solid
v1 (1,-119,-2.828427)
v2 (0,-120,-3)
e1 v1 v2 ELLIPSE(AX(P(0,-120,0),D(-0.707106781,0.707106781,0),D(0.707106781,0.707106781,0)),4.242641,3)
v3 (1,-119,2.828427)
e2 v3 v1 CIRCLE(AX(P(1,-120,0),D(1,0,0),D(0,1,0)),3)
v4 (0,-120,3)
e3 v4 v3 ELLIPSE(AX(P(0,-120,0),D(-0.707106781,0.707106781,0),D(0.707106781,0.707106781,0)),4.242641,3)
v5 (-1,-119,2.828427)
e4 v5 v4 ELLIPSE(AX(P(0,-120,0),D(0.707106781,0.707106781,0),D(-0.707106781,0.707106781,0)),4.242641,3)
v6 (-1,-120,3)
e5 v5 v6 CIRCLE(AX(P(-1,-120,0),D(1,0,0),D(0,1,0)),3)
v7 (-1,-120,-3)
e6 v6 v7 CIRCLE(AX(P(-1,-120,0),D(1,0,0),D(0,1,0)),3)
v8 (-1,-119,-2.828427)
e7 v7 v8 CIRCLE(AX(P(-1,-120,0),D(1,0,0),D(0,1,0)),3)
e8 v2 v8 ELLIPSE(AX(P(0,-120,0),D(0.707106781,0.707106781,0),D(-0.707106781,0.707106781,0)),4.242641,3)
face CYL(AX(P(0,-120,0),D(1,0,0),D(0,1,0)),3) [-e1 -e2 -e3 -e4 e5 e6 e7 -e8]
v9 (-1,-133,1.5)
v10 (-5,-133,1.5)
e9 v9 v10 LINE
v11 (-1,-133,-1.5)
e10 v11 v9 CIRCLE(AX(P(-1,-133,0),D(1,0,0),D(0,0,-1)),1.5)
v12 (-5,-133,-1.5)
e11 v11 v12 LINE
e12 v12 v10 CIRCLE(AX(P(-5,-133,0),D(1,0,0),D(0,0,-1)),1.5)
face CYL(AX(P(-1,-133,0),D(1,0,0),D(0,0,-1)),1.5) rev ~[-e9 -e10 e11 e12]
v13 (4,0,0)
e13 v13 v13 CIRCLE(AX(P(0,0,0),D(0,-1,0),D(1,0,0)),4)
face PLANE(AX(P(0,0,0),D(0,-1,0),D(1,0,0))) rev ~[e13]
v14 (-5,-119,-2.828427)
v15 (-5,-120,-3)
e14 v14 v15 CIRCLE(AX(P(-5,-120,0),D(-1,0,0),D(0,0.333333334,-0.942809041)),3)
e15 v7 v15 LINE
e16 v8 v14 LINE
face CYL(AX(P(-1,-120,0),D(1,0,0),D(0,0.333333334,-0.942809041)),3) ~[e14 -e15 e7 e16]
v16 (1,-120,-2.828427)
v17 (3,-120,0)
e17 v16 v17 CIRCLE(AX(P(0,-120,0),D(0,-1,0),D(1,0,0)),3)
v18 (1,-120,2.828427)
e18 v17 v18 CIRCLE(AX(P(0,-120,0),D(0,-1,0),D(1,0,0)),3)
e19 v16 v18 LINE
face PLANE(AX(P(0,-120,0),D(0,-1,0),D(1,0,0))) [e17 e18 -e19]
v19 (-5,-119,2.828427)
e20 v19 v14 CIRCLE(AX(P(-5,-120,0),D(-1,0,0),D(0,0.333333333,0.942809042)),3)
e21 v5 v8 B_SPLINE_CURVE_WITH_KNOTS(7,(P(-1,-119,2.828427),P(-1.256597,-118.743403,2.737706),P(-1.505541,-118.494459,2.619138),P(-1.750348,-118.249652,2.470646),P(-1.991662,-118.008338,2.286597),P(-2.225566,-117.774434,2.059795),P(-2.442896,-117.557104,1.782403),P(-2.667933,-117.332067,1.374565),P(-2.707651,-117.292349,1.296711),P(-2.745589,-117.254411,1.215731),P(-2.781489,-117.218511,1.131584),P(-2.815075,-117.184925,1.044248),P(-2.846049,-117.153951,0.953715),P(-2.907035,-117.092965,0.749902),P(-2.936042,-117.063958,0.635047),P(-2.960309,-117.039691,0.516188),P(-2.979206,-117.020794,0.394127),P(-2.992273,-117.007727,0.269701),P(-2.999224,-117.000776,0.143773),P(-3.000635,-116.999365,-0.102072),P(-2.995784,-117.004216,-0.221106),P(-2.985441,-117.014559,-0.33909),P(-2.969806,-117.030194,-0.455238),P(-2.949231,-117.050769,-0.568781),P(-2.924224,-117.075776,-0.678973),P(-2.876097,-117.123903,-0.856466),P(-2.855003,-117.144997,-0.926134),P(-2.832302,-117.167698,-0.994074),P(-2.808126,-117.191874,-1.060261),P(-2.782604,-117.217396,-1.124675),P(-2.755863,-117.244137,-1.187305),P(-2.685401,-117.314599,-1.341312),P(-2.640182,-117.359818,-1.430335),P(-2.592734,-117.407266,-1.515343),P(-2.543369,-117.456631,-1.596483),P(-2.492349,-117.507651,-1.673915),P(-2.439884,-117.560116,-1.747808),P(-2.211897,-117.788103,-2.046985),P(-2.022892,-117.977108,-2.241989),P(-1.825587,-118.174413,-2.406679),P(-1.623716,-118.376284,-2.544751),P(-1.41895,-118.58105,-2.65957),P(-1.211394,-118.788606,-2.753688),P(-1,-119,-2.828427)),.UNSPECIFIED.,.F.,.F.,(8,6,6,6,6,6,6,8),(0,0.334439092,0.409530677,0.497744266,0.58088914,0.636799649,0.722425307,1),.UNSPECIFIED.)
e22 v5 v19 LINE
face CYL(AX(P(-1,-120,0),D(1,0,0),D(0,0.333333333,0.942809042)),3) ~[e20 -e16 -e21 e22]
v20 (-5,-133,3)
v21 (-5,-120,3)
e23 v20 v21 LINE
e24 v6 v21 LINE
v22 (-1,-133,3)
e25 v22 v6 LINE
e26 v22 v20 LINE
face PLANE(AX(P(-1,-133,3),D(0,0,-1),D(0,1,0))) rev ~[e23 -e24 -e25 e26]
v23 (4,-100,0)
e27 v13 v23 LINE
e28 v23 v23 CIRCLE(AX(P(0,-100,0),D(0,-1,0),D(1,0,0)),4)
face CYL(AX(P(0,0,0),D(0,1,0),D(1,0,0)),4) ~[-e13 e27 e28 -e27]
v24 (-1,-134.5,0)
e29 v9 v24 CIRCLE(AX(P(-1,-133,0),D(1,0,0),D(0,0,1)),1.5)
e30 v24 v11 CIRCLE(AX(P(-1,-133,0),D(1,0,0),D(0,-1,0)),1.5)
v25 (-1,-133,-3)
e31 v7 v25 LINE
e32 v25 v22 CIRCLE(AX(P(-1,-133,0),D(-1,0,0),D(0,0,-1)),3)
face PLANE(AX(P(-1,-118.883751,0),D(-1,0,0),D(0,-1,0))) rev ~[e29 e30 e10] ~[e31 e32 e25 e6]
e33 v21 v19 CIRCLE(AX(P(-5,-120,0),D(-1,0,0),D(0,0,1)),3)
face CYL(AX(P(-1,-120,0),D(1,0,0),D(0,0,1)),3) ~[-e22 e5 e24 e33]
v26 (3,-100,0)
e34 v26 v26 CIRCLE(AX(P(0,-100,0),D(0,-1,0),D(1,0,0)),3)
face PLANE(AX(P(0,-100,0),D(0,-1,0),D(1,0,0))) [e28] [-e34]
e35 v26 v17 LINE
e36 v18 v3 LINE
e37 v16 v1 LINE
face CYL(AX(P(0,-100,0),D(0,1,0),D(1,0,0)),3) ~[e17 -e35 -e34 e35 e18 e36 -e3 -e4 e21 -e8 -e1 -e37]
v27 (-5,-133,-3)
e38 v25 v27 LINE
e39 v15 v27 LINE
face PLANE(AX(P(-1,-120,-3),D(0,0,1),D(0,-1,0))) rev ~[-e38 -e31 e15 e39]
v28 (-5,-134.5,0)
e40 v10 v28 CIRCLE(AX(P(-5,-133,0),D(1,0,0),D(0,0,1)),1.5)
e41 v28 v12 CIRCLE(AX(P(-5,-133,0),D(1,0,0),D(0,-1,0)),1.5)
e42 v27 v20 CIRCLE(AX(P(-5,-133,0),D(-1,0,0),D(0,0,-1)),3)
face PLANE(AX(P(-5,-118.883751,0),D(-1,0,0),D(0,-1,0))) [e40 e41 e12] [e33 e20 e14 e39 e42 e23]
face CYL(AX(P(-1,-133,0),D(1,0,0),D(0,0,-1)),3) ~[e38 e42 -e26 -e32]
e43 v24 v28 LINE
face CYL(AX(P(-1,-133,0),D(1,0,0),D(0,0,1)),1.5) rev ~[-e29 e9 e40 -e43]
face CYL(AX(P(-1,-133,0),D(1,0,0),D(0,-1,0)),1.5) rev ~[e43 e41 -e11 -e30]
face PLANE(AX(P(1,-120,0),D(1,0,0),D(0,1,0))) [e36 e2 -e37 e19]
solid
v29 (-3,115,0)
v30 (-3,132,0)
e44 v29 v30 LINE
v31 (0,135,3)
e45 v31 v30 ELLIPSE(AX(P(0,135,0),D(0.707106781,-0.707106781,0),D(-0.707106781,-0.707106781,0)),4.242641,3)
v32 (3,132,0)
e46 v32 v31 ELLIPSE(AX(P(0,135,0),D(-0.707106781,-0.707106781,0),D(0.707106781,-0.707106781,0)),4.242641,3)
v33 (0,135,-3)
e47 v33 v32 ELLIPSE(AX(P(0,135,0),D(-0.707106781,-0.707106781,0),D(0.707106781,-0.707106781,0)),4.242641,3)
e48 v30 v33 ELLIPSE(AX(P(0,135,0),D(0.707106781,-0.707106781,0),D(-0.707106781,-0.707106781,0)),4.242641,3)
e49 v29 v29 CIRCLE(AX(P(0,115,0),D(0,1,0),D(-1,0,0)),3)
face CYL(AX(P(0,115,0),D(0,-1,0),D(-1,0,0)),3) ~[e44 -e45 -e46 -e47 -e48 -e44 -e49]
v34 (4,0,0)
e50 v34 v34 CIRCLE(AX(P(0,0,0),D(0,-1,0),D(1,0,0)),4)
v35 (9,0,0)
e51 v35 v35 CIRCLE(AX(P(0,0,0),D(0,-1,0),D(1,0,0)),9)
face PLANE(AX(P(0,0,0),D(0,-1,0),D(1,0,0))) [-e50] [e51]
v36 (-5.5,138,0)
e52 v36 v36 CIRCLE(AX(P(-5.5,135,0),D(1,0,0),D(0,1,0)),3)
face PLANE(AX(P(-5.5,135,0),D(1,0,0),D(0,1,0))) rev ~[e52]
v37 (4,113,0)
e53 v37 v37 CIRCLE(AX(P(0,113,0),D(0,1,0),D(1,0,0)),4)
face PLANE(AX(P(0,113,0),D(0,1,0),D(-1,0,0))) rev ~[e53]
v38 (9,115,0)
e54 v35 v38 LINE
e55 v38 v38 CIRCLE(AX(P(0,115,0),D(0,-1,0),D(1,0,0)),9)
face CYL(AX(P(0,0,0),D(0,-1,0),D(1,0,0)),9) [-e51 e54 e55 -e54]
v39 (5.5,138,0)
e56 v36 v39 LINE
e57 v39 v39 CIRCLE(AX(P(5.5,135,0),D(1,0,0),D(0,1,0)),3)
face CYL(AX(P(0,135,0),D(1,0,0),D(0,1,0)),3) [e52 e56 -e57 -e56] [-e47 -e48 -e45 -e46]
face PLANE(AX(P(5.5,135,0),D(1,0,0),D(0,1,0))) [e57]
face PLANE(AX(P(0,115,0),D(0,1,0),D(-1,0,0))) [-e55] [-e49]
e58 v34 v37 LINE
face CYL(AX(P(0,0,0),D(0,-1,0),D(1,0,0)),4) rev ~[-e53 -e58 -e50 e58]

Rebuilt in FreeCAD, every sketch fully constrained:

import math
import FreeCAD as App
import Part
import Sketcher

V = App.Vector
Q = App.Units.Quantity

doc = App.newDocument("Part")
body = doc.addObject("PartDesign::Body", "Body")

# Sketch on XZ plane
sketch1 = doc.addObject("Sketcher::SketchObject", "Sketch")
body.addObject(sketch1)
sketch1.AttachmentSupport = (doc.XZ_Plane, [""])
sketch1.MapMode = "FlatFace"
sketch1.addGeometry(Part.Circle(V(0, 0, 0), V(0, 0, 1), 4), False)
sketch1.addConstraint([
    Sketcher.Constraint("Coincident", 0, 3, -1, 1),
    Sketcher.Constraint("Diameter", 0, Q("8 mm")),
])
pad1 = doc.addObject("PartDesign::Pad", "Pad")
body.addObject(pad1)
pad1.Profile = sketch1
pad1.Length = 100

# Sketch on XZ plane
sketch2 = doc.addObject("Sketcher::SketchObject", "Sketch001")
body.addObject(sketch2)
sketch2.AttachmentSupport = (doc.XZ_Plane, [""])
sketch2.MapMode = "FlatFace"
sketch2.AttachmentOffset = App.Placement(V(0, 0, 100), App.Rotation())
sketch2.addGeometry(Part.Circle(V(0, 0, 0), V(0, 0, 1), 3), False)
sketch2.addConstraint([
    Sketcher.Constraint("Coincident", 0, 3, -1, 1),
    Sketcher.Constraint("Diameter", 0, Q("6 mm")),
])
pad2 = doc.addObject("PartDesign::Pad", "Pad001")
body.addObject(pad2)
pad2.Profile = sketch2
pad2.Length = 20

# Sketch on YZ plane
sketch3 = doc.addObject("Sketcher::SketchObject", "Sketch002")
body.addObject(sketch3)
sketch3.AttachmentSupport = (doc.YZ_Plane, [""])
sketch3.MapMode = "FlatFace"
sketch3.addGeometry(Part.Circle(V(-120, 0, 0), V(0, 0, 1), 3), False)
sketch3.addConstraint([
    Sketcher.Constraint("PointOnObject", 0, 3, -1),
    Sketcher.Constraint("Diameter", 0, Q("6 mm")),
    Sketcher.Constraint("DistanceX", 0, 3, -1, 1, Q("120 mm")),
])
pad3 = doc.addObject("PartDesign::Pad", "Pad002")
body.addObject(pad3)
pad3.Profile = sketch3
pad3.Length = 2
pad3.Midplane = True

# Sketch on YZ plane
sketch4 = doc.addObject("Sketcher::SketchObject", "Sketch003")
body.addObject(sketch4)
sketch4.AttachmentSupport = (doc.YZ_Plane, [""])
sketch4.MapMode = "FlatFace"
sketch4.AttachmentOffset = App.Placement(V(0, 0, -1), App.Rotation())
sketch4.addGeometry([
    Part.ArcOfCircle(Part.Circle(V(-120, 0, 0), V(0, 0, 1), 3), math.radians(-70.528779), math.radians(70.528779)),  # 0
    Part.ArcOfCircle(Part.Circle(V(-120, 0, 0), V(0, 0, 1), 3), math.radians(-90), math.radians(-70.528779)),  # 1
    Part.LineSegment(V(-120, -3, 0), V(-133, -3, 0)),  # 2
    Part.ArcOfCircle(Part.Circle(V(-133, 0, 0), V(0, 0, 1), 3), math.radians(90), math.radians(270)),  # 3
    Part.LineSegment(V(-133, 3, 0), V(-120, 3, 0)),  # 4
    Part.ArcOfCircle(Part.Circle(V(-120, 0, 0), V(0, 0, 1), 3), math.radians(70.528779), math.radians(90)),  # 5
    Part.ArcOfCircle(Part.Circle(V(-133, 0, 0), V(0, 0, 1), 1.5), math.radians(-90), math.radians(90)),  # 6
    Part.ArcOfCircle(Part.Circle(V(-133, 0, 0), V(0, 0, 1), 1.5), math.radians(90), math.radians(180)),  # 7
    Part.ArcOfCircle(Part.Circle(V(-133, 0, 0), V(0, 0, 1), 1.5), math.radians(180), math.radians(270)),  # 8
], False)
sketch4.addConstraint([
    Sketcher.Constraint("Tangent", 0, 1, 1, 2),
    Sketcher.Constraint("Tangent", 1, 1, 2, 1),
    Sketcher.Constraint("Tangent", 2, 2, 3, 2),
    Sketcher.Constraint("Tangent", 3, 1, 4, 1),
    Sketcher.Constraint("Tangent", 4, 2, 5, 2),
    Sketcher.Constraint("Tangent", 5, 1, 0, 2),
    Sketcher.Constraint("Tangent", 6, 2, 7, 1),
    Sketcher.Constraint("Tangent", 7, 2, 8, 1),
    Sketcher.Constraint("Tangent", 8, 2, 6, 1),
    Sketcher.Constraint("Horizontal", 2),
    Sketcher.Constraint("Horizontal", 4),
    Sketcher.Constraint("Coincident", 6, 3, 3, 3),
    Sketcher.Constraint("Equal", 0, 1),
    Sketcher.Constraint("Equal", 1, 3),
    Sketcher.Constraint("Symmetric", 0, 1, 5, 1, -1),
    Sketcher.Constraint("PointOnObject", 7, 2, -1),
    Sketcher.Constraint("Vertical", 3, 1, 6, 2),
    Sketcher.Constraint("Vertical", 6, 2, 8, 2),
    Sketcher.Constraint("Radius", 0, Q("3 mm")),
    Sketcher.Constraint("Radius", 6, Q("1.5 mm")),
    Sketcher.Constraint("DistanceX", 2, 2, 2, 1, Q("13 mm")),
    Sketcher.Constraint("DistanceX", 0, 3, -1, 1, Q("120 mm")),
    Sketcher.Constraint("DistanceX", 0, 1, -1, 1, Q("119 mm")),
])
pad4 = doc.addObject("PartDesign::Pad", "Pad003")
body.addObject(pad4)
pad4.Profile = sketch4
pad4.Length = 4
pad4.Reversed = True
body2 = doc.addObject("PartDesign::Body", "Body001")

# Sketch on XZ plane
sketch5 = doc.addObject("Sketcher::SketchObject", "Sketch004")
body2.addObject(sketch5)
sketch5.AttachmentSupport = (doc.getObject("XZ_Plane001"), [""])
sketch5.MapMode = "FlatFace"
sketch5.addGeometry([
    Part.Circle(V(0, 0, 0), V(0, 0, 1), 9),
    Part.Circle(V(0, 0, 0), V(0, 0, 1), 4),
], False)
sketch5.addConstraint([
    Sketcher.Constraint("Coincident", 0, 3, -1, 1),
    Sketcher.Constraint("Coincident", 1, 3, -1, 1),
    Sketcher.Constraint("Diameter", 0, Q("18 mm")),
    Sketcher.Constraint("Diameter", 1, Q("8 mm")),
])
pad5 = doc.addObject("PartDesign::Pad", "Pad004")
body2.addObject(pad5)
pad5.Profile = sketch5
pad5.Length = 115
pad5.Reversed = True

# Sketch on XZ plane
sketch6 = doc.addObject("Sketcher::SketchObject", "Sketch005")
body2.addObject(sketch6)
sketch6.AttachmentSupport = (doc.getObject("XZ_Plane001"), [""])
sketch6.MapMode = "FlatFace"
sketch6.AttachmentOffset = App.Placement(V(0, 0, -115), App.Rotation())
sketch6.addGeometry(Part.Circle(V(0, 0, 0), V(0, 0, 1), 4), False)
sketch6.addConstraint([
    Sketcher.Constraint("Coincident", 0, 3, -1, 1),
    Sketcher.Constraint("Diameter", 0, Q("8 mm")),
])
pad6 = doc.addObject("PartDesign::Pad", "Pad005")
body2.addObject(pad6)
pad6.Profile = sketch6
pad6.Length = 2

# Sketch on XZ plane
sketch7 = doc.addObject("Sketcher::SketchObject", "Sketch006")
body2.addObject(sketch7)
sketch7.AttachmentSupport = (doc.getObject("XZ_Plane001"), [""])
sketch7.MapMode = "FlatFace"
sketch7.AttachmentOffset = App.Placement(V(0, 0, -115), App.Rotation())
sketch7.addGeometry(Part.Circle(V(0, 0, 0), V(0, 0, 1), 3), False)
sketch7.addConstraint([
    Sketcher.Constraint("Coincident", 0, 3, -1, 1),
    Sketcher.Constraint("Diameter", 0, Q("6 mm")),
])
pad7 = doc.addObject("PartDesign::Pad", "Pad006")
body2.addObject(pad7)
pad7.Profile = sketch7
pad7.Type = "TwoLengths"
pad7.Length = 20
pad7.Length2 = 1
pad7.Reversed = True

# Sketch on YZ plane
sketch8 = doc.addObject("Sketcher::SketchObject", "Sketch007")
body2.addObject(sketch8)
sketch8.AttachmentSupport = (doc.getObject("YZ_Plane001"), [""])
sketch8.MapMode = "FlatFace"
sketch8.addGeometry(Part.Circle(V(135, 0, 0), V(0, 0, 1), 3), False)
sketch8.addConstraint([
    Sketcher.Constraint("PointOnObject", 0, 3, -1),
    Sketcher.Constraint("Diameter", 0, Q("6 mm")),
    Sketcher.Constraint("DistanceX", -1, 1, 0, 3, Q("135 mm")),
])
pad8 = doc.addObject("PartDesign::Pad", "Pad007")
body2.addObject(pad8)
pad8.Profile = sketch8
pad8.Length = 11
pad8.Midplane = True

doc.recompute()
